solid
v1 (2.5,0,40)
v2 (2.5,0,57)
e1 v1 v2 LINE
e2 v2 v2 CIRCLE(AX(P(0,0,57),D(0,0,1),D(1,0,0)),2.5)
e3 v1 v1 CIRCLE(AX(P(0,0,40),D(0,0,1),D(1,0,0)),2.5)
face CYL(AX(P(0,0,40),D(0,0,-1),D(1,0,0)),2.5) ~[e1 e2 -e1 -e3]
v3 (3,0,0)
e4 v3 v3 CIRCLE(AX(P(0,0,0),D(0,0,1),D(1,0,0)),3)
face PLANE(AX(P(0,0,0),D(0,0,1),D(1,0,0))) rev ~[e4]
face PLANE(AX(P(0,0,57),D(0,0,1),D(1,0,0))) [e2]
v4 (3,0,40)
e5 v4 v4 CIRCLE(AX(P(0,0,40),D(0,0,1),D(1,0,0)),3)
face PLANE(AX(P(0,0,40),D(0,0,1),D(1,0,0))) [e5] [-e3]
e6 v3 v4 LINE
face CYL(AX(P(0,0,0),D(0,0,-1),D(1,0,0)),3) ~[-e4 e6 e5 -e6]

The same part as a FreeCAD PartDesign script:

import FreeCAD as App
import Part
import Sketcher

doc = App.newDocument("Part")
body = doc.addObject("PartDesign::Body", "Body")

# Sketch on XY plane
sketch1 = body.newObject("Sketcher::SketchObject", "Sketch")
sketch1.AttachmentSupport = (doc.getObject("XY_Plane"), [""])
sketch1.MapMode = "FlatFace"
sketch1.addGeometry(Part.Circle(App.Vector(0, 0, 0), App.Vector(0, 0, 1), 3), False)
sketch1.addConstraint([
    Sketcher.Constraint("Coincident", 0, 3, -1, 1),
    Sketcher.Constraint("Diameter", 0, 6.0),
])
pad1 = body.newObject("PartDesign::Pad", "Pad")
pad1.Profile = sketch1
pad1.Length = 40

# Sketch on XY plane
sketch2 = body.newObject("Sketcher::SketchObject", "Sketch001")
sketch2.AttachmentSupport = (doc.getObject("XY_Plane"), [""])
sketch2.MapMode = "FlatFace"
sketch2.AttachmentOffset = App.Placement(App.Vector(0, 0, 40), App.Rotation())
sketch2.addGeometry(Part.Circle(App.Vector(0, 0, 0), App.Vector(0, 0, 1), 2.5), False)
sketch2.addConstraint([
    Sketcher.Constraint("Coincident", 0, 3, -1, 1),
    Sketcher.Constraint("Diameter", 0, 5.0),
])
pad2 = body.newObject("PartDesign::Pad", "Pad001")
pad2.Profile = sketch2
pad2.Length = 17

doc.recompute()
